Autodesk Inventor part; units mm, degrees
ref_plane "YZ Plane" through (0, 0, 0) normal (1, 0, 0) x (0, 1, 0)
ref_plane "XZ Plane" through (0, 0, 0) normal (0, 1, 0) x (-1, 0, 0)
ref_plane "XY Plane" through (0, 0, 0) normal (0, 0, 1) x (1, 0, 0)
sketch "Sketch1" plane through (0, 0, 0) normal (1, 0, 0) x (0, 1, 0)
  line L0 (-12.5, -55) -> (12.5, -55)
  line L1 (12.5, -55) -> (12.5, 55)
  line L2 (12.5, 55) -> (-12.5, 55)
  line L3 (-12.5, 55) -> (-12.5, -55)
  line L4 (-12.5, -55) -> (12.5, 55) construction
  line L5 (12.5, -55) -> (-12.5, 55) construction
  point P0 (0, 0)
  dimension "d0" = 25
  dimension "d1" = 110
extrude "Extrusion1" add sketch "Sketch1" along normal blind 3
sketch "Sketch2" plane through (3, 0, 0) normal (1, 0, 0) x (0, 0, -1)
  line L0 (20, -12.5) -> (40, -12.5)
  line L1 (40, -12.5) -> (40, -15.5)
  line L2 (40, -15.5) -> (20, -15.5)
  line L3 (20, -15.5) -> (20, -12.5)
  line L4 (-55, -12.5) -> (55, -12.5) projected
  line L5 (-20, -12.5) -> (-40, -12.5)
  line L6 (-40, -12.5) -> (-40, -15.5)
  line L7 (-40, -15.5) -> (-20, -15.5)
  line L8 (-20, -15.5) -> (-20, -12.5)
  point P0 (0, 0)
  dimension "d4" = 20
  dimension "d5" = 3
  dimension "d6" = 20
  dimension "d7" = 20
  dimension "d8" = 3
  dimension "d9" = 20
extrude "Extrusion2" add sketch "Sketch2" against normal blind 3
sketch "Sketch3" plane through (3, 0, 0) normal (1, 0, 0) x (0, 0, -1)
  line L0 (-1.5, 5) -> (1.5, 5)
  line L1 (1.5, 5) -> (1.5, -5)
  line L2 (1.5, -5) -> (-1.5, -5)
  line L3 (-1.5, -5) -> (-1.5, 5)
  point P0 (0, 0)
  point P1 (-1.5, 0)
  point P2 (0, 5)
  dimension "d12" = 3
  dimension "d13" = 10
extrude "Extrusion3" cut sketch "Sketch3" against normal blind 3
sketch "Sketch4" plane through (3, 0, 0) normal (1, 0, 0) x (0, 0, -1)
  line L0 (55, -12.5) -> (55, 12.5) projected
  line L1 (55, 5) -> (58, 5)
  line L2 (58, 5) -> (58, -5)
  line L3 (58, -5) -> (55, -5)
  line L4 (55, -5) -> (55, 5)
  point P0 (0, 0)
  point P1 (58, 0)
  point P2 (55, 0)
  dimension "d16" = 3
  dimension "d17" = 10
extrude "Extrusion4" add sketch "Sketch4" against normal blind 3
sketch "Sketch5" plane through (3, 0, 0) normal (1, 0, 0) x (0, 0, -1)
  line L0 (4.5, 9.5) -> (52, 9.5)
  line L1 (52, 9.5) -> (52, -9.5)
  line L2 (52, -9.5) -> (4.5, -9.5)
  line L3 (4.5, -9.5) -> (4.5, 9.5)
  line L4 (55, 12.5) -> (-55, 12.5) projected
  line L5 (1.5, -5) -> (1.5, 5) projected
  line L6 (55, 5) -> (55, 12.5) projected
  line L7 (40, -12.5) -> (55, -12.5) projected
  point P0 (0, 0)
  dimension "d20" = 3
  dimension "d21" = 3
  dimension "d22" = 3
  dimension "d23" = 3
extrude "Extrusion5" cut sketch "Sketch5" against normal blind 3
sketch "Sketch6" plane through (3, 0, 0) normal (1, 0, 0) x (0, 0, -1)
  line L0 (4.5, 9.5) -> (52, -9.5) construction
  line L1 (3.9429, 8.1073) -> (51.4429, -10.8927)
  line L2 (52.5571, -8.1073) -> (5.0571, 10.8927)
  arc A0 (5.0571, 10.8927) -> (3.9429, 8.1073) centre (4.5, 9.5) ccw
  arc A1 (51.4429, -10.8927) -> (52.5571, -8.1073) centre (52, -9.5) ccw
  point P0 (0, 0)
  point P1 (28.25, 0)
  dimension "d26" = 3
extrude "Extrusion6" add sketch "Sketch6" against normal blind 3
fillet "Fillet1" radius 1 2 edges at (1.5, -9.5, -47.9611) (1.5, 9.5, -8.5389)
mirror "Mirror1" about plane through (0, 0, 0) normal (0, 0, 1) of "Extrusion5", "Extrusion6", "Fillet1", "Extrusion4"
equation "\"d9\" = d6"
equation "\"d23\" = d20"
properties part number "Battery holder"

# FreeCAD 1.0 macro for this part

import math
import FreeCAD as App
import Part
import Sketcher
from FreeCAD import Vector


def edges_at(feature, points):
    """Names of the edges that pass closest to the given points."""
    edges = feature.Shape.Edges
    near = lambda p: min(range(len(edges)), key=lambda i: edges[i].distToShape(Part.Vertex(*p))[0])
    return sorted({f"Edge{near(p) + 1}" for p in points})


def add_polygon(sketch, points):
    """Adds a closed chain of lines whose ends are joined by coincident constraints."""
    first, n = sketch.GeometryCount, len(points)
    for a, b in zip(points, points[1:] + points[:1]):
        sketch.addGeometry(Part.LineSegment(App.Vector(*a, 0), App.Vector(*b, 0)), False)
    for i in range(n):
        sketch.addConstraint(Sketcher.Constraint("Coincident", first + i, 2, first + (i + 1) % n, 1))

doc = App.newDocument("Part")
body = doc.addObject("PartDesign::Body", "Body")

# Sketch on YZ plane
sketch1 = body.newObject("Sketcher::SketchObject", "Sketch")
sketch1.AttachmentSupport = (doc.getObject("YZ_Plane"), [""])
sketch1.MapMode = "FlatFace"
add_polygon(sketch1, [(-12, 55), (-12, -55), (12, -55), (12, 55)])  # lines 0-3
sketch1.addConstraint([
    Sketcher.Constraint("Vertical", 0),
    Sketcher.Constraint("Horizontal", 1),
    Sketcher.Constraint("Vertical", 2),
    Sketcher.Constraint("Horizontal", 3),
    Sketcher.Constraint("Symmetric", 0, 2, 2, 2, -1, 1),
    Sketcher.Constraint("DistanceX", 1, 1, 1, 2, 25.0),
    Sketcher.Constraint("DistanceY", 0, 2, 0, 1, 110.0),
])
pad1 = body.newObject("PartDesign::Pad", "Pad")
pad1.Profile = sketch1
pad1.Length = 3

# Sketch on YZ plane
sketch2 = body.newObject("Sketcher::SketchObject", "Sketch001")
sketch2.AttachmentSupport = (doc.getObject("YZ_Plane"), [""])
sketch2.MapMode = "FlatFace"
sketch2.AttachmentOffset = App.Placement(Vector(0, 0, 3), App.Rotation())
add_polygon(sketch2, [(-12.5, -40), (-12.5, -20), (-15.5, -20), (-15.5, -40)])  # lines 0-3
add_polygon(sketch2, [(-15.5, 20), (-12.5, 20), (-12.5, 40), (-15.5, 40)])  # lines 4-7
sketch2.addConstraint([
    Sketcher.Constraint("Vertical", 0),
    Sketcher.Constraint("Horizontal", 1),
    Sketcher.Constraint("Vertical", 2),
    Sketcher.Constraint("Horizontal", 3),
    Sketcher.Constraint("Horizontal", 4),
    Sketcher.Constraint("Vertical", 5),
    Sketcher.Constraint("Horizontal", 6),
    Sketcher.Constraint("Vertical", 7),
    Sketcher.Constraint("Symmetric", 0, 2, 4, 2, -1),
    Sketcher.Constraint("Symmetric", 2, 2, 6, 2, -1),
    Sketcher.Constraint("DistanceX", 1, 2, 1, 1, 3.0),
    Sketcher.Constraint("DistanceY", 0, 1, 0, 2, 20.0),
    Sketcher.Constraint("DistanceY", 0, 2, -1, 1, 20.0),
    Sketcher.Constraint("DistanceX", 0, 2, -1, 1, 12.5),
])
pad2 = body.newObject("PartDesign::Pad", "Pad001")
pad2.Profile = sketch2
pad2.Length = 3
pad2.Reversed = True

# Sketch on YZ plane
sketch3 = body.newObject("Sketcher::SketchObject", "Sketch002")
sketch3.AttachmentSupport = (doc.getObject("YZ_Plane"), [""])
sketch3.MapMode = "FlatFace"
sketch3.AttachmentOffset = App.Placement(Vector(0, 0, 3), App.Rotation())
add_polygon(sketch3, [(5, -1.5), (5, 1.5), (-5, 1.5), (-5, -1.5)])  # lines 0-3
sketch3.addConstraint([
    Sketcher.Constraint("Vertical", 0),
    Sketcher.Constraint("Horizontal", 1),
    Sketcher.Constraint("Vertical", 2),
    Sketcher.Constraint("Horizontal", 3),
    Sketcher.Constraint("Symmetric", 0, 2, 2, 2, -1, 1),
    Sketcher.Constraint("DistanceX", 1, 2, 1, 1, 10.0),
    Sketcher.Constraint("DistanceY", 0, 1, 0, 2, 3.0),
])
pocket1 = body.newObject("PartDesign::Pocket", "Pocket")
pocket1.Profile = sketch3
pocket1.Length = 3

# Sketch on YZ plane
sketch4 = body.newObject("Sketcher::SketchObject", "Sketch003")
sketch4.AttachmentSupport = (doc.getObject("YZ_Plane"), [""])
sketch4.MapMode = "FlatFace"
sketch4.AttachmentOffset = App.Placement(Vector(0, 0, 3), App.Rotation())
add_polygon(sketch4, [(5, -55), (-5, -55), (-5, -58), (5, -58)])  # lines 0-3
sketch4.addConstraint([
    Sketcher.Constraint("Horizontal", 0),
    Sketcher.Constraint("Vertical", 1),
    Sketcher.Constraint("Horizontal", 2),
    Sketcher.Constraint("Vertical", 3),
    Sketcher.Constraint("DistanceX", 0, 2, 0, 1, 10.0),
    Sketcher.Constraint("DistanceY", 1, 2, 1, 1, 3.0),
    Sketcher.Constraint("DistanceX", 0, 2, -1, 1, 5.0),
    Sketcher.Constraint("DistanceY", 0, 2, -1, 1, 55.0),
])
pad3 = body.newObject("PartDesign::Pad", "Pad002")
pad3.Profile = sketch4
pad3.Length = 3
pad3.Reversed = True

# Sketch on YZ plane
sketch5 = body.newObject("Sketcher::SketchObject", "Sketch004")
sketch5.AttachmentSupport = (doc.getObject("YZ_Plane"), [""])
sketch5.MapMode = "FlatFace"
sketch5.AttachmentOffset = App.Placement(Vector(0, 0, 3), App.Rotation())
add_polygon(sketch5, [(10, -52), (10, -4), (-10, -4), (-10, -52)])  # lines 0-3
sketch5.addConstraint([
    Sketcher.Constraint("Vertical", 0),
    Sketcher.Constraint("Horizontal", 1),
    Sketcher.Constraint("Vertical", 2),
    Sketcher.Constraint("Horizontal", 3),
    Sketcher.Constraint("DistanceX", 1, 2, 1, 1, 19.0),
    Sketcher.Constraint("DistanceY", 0, 1, 0, 2, 47.5),
    Sketcher.Constraint("DistanceY", 2, 2, -1, 1, 52.0),
    Sketcher.Constraint("DistanceX", -1, 1, 0, 2, 9.5),
])
pocket2 = body.newObject("PartDesign::Pocket", "Pocket001")
pocket2.Profile = sketch5
pocket2.Length = 3

# Sketch on YZ plane
sketch6 = body.newObject("Sketcher::SketchObject", "Sketch005")
sketch6.AttachmentSupport = (doc.getObject("YZ_Plane"), [""])
sketch6.MapMode = "FlatFace"
sketch6.AttachmentOffset = App.Placement(Vector(0, 0, 3), App.Rotation())
sketch6.addGeometry([
    Part.ArcOfCircle(Part.Circle(Vector(9.5, -4.5, 0), Vector(0, 0, 1), 1.5), math.radians(-22), math.radians(158)),
    Part.LineSegment(Vector(8.1, -3.9, 0), Vector(-10.9, -51.4, 0)),
    Part.ArcOfCircle(Part.Circle(Vector(-9.5, -52, 0), Vector(0, 0, 1), 1.5), math.radians(158), math.radians(338)),
    Part.LineSegment(Vector(-8.1, -52.6, 0), Vector(10.9, -5.1, 0)),
], False)
sketch6.addConstraint([
    Sketcher.Constraint("Tangent", 0, 2, 1, 1),
    Sketcher.Constraint("Tangent", 1, 2, 2, 1),
    Sketcher.Constraint("Tangent", 2, 2, 3, 1),
    Sketcher.Constraint("Tangent", 3, 2, 0, 1),
    Sketcher.Constraint("Equal", 0, 2),
    Sketcher.Constraint("Radius", 0, 1.5),
    Sketcher.Constraint("DistanceY", 2, 3, -1, 1, 52.0),
    Sketcher.Constraint("DistanceX", 2, 3, 0, 3, 19.0),
    Sketcher.Constraint("DistanceX", -1, 1, 0, 3, 9.5),
    Sketcher.Constraint("DistanceY", 0, 3, -1, 1, 4.5),
])
pad4 = body.newObject("PartDesign::Pad", "Pad003")
pad4.Profile = sketch6
pad4.Length = 3
pad4.Reversed = True
doc.recompute()

fillet = body.newObject("PartDesign::Fillet", "Fillet")
fillet.Base = (pad4, edges_at(pad4, [(1.5, -9.5, -47.961), (1.5, 9.5, -8.539)]))
fillet.Radius = 1
doc.recompute()

mirrored = body.newObject("PartDesign::Mirrored", "Mirrored")
mirrored.Originals = [pocket2, pad4, fillet, pad3]
mirrored.MirrorPlane = (doc.getObject("XY_Plane"), [""])
body.Tip = mirrored

doc.recompute()
